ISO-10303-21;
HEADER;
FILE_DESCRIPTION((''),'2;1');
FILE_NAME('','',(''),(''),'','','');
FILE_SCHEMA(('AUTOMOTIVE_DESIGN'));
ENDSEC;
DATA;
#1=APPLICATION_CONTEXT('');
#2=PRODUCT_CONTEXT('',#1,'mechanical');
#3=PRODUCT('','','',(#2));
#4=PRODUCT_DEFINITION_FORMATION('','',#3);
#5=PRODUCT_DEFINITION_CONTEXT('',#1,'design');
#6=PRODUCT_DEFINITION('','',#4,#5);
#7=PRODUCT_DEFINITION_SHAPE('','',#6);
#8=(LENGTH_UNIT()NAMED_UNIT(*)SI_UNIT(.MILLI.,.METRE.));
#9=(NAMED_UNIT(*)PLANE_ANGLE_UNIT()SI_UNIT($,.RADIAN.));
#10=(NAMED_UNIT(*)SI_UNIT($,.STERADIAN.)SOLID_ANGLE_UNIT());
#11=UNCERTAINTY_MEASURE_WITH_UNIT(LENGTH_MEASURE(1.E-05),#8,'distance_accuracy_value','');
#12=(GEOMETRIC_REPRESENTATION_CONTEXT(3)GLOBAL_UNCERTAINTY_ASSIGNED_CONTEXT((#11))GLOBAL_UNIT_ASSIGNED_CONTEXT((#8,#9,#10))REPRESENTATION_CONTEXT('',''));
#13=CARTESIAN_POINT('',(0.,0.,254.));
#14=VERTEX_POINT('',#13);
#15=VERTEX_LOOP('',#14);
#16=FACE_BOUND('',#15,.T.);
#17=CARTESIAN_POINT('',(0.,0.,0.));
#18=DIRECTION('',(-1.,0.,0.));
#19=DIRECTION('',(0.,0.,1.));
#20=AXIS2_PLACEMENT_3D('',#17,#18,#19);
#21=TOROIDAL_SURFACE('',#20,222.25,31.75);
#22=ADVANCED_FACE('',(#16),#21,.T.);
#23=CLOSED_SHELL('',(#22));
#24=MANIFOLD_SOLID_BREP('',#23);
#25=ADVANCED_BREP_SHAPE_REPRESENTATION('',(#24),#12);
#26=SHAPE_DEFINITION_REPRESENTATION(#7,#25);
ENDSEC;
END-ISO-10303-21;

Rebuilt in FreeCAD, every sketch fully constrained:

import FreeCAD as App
import Part
import Sketcher
from FreeCAD import Vector
Q = App.Units.Quantity

doc = App.newDocument("Part")
body = doc.addObject("PartDesign::Body", "Body")

# Sketch on XY plane
sketch1 = body.newObject("Sketcher::SketchObject", "Sketch")
sketch1.AttachmentSupport = (doc.getObject("XY_Plane"), [""])
sketch1.MapMode = "FlatFace"
sketch1.addGeometry(Part.Circle(Vector(0, 222.25, 0), Vector(0, 0, 1), 31.75), False)
sketch1.addConstraint([
    Sketcher.Constraint("PointOnObject", 0, 3, -2),
    Sketcher.Constraint("Diameter", 0, Q("2.5 in")),
    Sketcher.Constraint("DistanceY", -1, 1, 0, 3, Q("8.75 in")),
])
revolution = body.newObject("PartDesign::Revolution", "Revolution")
revolution.Profile = sketch1
revolution.ReferenceAxis = (sketch1, ["H_Axis"])
revolution.Angle = 360

doc.recompute()
